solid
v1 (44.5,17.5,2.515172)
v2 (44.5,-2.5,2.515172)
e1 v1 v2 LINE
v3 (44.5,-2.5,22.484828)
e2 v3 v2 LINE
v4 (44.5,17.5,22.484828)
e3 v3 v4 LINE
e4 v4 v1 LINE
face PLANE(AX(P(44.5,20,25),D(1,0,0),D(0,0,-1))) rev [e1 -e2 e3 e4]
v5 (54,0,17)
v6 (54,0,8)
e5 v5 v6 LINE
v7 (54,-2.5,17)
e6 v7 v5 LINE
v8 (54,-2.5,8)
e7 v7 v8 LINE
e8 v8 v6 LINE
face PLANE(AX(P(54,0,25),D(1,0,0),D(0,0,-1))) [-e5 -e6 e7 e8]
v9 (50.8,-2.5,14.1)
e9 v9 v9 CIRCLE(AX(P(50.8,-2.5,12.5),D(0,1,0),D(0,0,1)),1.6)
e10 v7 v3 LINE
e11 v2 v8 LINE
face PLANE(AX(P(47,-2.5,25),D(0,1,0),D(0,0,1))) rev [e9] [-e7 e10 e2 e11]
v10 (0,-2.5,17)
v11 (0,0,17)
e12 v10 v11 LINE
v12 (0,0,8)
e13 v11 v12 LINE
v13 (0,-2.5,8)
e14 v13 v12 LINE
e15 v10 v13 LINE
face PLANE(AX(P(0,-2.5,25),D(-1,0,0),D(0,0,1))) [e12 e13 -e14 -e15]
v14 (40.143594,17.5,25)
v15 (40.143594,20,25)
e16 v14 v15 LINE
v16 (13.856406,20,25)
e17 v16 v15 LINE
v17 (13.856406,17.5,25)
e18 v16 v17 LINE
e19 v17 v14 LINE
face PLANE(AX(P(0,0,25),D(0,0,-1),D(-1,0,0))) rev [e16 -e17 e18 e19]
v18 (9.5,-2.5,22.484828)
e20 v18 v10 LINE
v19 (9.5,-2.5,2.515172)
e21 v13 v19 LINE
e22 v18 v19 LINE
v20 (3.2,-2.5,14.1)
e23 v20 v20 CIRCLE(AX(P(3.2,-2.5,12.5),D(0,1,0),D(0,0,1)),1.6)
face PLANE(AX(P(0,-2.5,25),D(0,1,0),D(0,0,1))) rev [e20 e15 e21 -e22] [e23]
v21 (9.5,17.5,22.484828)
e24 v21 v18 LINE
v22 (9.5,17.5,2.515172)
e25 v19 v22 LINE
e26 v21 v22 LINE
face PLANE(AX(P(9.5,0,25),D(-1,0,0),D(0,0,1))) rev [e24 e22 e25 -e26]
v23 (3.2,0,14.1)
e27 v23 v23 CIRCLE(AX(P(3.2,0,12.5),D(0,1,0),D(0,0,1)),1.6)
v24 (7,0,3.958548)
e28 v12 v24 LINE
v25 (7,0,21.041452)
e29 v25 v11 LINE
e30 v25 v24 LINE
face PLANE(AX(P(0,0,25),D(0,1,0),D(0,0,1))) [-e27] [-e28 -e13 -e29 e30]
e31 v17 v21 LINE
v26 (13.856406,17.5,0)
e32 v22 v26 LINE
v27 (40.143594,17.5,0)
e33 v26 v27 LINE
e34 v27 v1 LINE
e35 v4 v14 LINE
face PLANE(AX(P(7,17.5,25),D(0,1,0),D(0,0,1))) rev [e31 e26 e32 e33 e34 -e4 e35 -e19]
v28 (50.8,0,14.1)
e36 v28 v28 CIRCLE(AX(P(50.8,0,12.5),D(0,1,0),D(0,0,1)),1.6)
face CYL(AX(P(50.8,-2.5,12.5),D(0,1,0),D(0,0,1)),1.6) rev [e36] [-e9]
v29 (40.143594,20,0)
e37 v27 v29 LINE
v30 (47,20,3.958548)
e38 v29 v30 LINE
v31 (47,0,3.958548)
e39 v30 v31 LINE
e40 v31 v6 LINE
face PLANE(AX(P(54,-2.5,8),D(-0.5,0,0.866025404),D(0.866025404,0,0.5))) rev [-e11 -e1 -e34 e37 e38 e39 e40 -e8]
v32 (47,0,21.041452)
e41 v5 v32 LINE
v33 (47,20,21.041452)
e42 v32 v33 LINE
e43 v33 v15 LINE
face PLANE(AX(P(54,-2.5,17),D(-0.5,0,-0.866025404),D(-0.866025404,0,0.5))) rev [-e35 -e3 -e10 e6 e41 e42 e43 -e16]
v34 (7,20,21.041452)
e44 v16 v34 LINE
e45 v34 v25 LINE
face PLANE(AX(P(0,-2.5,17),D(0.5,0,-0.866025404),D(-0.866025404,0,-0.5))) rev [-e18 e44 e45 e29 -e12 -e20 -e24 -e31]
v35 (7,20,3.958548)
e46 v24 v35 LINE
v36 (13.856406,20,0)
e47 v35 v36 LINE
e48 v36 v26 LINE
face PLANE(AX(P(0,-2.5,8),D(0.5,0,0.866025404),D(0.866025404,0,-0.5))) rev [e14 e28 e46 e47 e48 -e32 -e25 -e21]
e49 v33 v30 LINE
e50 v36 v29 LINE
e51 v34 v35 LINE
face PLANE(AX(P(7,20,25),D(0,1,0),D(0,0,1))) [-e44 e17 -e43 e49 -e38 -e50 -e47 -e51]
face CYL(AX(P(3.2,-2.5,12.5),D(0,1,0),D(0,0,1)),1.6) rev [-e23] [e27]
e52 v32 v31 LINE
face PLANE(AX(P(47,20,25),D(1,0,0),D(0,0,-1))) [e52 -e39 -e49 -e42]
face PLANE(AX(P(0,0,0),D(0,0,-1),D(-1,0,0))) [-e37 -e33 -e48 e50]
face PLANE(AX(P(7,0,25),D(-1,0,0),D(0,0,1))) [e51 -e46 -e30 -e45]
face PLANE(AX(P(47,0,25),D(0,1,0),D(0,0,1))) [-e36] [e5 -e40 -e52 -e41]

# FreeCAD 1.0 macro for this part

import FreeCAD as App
import Part
import Sketcher

V = App.Vector
Q = App.Units.Quantity

doc = App.newDocument("Part")
params = doc.addObject("Spreadsheet::Sheet", "Params")
for row, (alias, value) in enumerate([
    ("sketch1_width", "7 mm"),
    ("sketch1_width2", "35 mm"),
    ("sketch1_width3", "40 mm"),
    ("sketch1_height", "20 mm"),
    ("sketch1_height2", "2.5 mm"),
    ("pad1_length", "25 mm"),
    ("sketch2_height", "8 mm"),
    ("sketch3_diameter", "3.2 mm"),
], start=1):
    params.set(f"A{row}", alias)
    params.set(f"B{row}", "=" + value)
    params.setAlias(f"B{row}", alias)

body = doc.addObject("PartDesign::Body", "Body")

# Sketch on XY plane
sketch1 = doc.addObject("Sketcher::SketchObject", "Sketch")
body.addObject(sketch1)
sketch1.AttachmentSupport = (doc.XY_Plane, [""])
sketch1.MapMode = "FlatFace"
sketch1.addGeometry([
    Part.LineSegment(V(7, 0, 0), V(0, 0, 0)),  # 0
    Part.LineSegment(V(0, 0, 0), V(0, -2.5, 0)),  # 1
    Part.LineSegment(V(0, -2.5, 0), V(9.5, -2.5, 0)),  # 2
    Part.LineSegment(V(9.5, -2.5, 0), V(9.5, 17.5, 0)),  # 3
    Part.LineSegment(V(9.5, 17.5, 0), V(44.5, 17.5, 0)),  # 4
    Part.LineSegment(V(44.5, 17.5, 0), V(44.5, -2.5, 0)),  # 5
    Part.LineSegment(V(44.5, -2.5, 0), V(54, -2.5, 0)),  # 6
    Part.LineSegment(V(54, -2.5, 0), V(54, 0, 0)),  # 7
    Part.LineSegment(V(54, 0, 0), V(47, 0, 0)),  # 8
    Part.LineSegment(V(47, 0, 0), V(47, 20, 0)),  # 9
    Part.LineSegment(V(47, 20, 0), V(7, 20, 0)),  # 10
    Part.LineSegment(V(7, 20, 0), V(7, 0, 0)),  # 11
], False)
sketch1.addConstraint([
    Sketcher.Constraint("Coincident", 0, 2, 1, 1),
    Sketcher.Constraint("Coincident", 1, 2, 2, 1),
    Sketcher.Constraint("Coincident", 2, 2, 3, 1),
    Sketcher.Constraint("Coincident", 3, 2, 4, 1),
    Sketcher.Constraint("Coincident", 4, 2, 5, 1),
    Sketcher.Constraint("Coincident", 5, 2, 6, 1),
    Sketcher.Constraint("Coincident", 6, 2, 7, 1),
    Sketcher.Constraint("Coincident", 7, 2, 8, 1),
    Sketcher.Constraint("Coincident", 8, 2, 9, 1),
    Sketcher.Constraint("Coincident", 9, 2, 10, 1),
    Sketcher.Constraint("Coincident", 10, 2, 11, 1),
    Sketcher.Constraint("Coincident", 11, 2, 0, 1),
    Sketcher.Constraint("Horizontal", 0),
    Sketcher.Constraint("Vertical", 1),
    Sketcher.Constraint("Horizontal", 2),
    Sketcher.Constraint("Vertical", 3),
    Sketcher.Constraint("Horizontal", 4),
    Sketcher.Constraint("Vertical", 5),
    Sketcher.Constraint("Horizontal", 6),
    Sketcher.Constraint("Vertical", 7),
    Sketcher.Constraint("Horizontal", 8),
    Sketcher.Constraint("Vertical", 9),
    Sketcher.Constraint("Horizontal", 10),
    Sketcher.Constraint("Vertical", 11),
    Sketcher.Constraint("Coincident", 0, 2, -1, 1),
    Sketcher.Constraint("PointOnObject", 7, 2, -1),
    Sketcher.Constraint("Horizontal", 2, 2, 5, 2),
    Sketcher.Constraint("Equal", 2, 6),
    Sketcher.Constraint("Equal", 0, 8),
    Sketcher.Constraint("Equal", 5, 9),
    Sketcher.Constraint("DistanceX", 0, 2, 0, 1, Q("7 mm")),
    Sketcher.Constraint("DistanceX", 4, 1, 4, 2, Q("35 mm")),
    Sketcher.Constraint("DistanceX", 10, 2, 10, 1, Q("40 mm")),
    Sketcher.Constraint("DistanceY", 3, 1, 3, 2, Q("20 mm")),
    Sketcher.Constraint("DistanceY", 1, 2, 1, 1, Q("2.5 mm")),
])
sketch1.setExpression("Constraints[30]", "Params.sketch1_width")
sketch1.setExpression("Constraints[31]", "Params.sketch1_width2")
sketch1.setExpression("Constraints[32]", "Params.sketch1_width3")
sketch1.setExpression("Constraints[33]", "Params.sketch1_height")
sketch1.setExpression("Constraints[34]", "Params.sketch1_height2")
pad1 = doc.addObject("PartDesign::Pad", "Pad")
body.addObject(pad1)
pad1.Profile = sketch1
pad1.setExpression("Length", "Params.pad1_length")

# Sketch on XZ plane
sketch2 = doc.addObject("Sketcher::SketchObject", "Sketch001")
body.addObject(sketch2)
sketch2.AttachmentSupport = (doc.XZ_Plane, [""])
sketch2.MapMode = "FlatFace"
sketch2.AttachmentOffset = App.Placement(V(0, 0, -20), App.Rotation())
sketch2.addGeometry([
    Part.LineSegment(V(0, 8, 0), V(13.856406, 0, 0)),  # 0
    Part.LineSegment(V(13.856406, 0, 0), V(0, 0, 0)),  # 1
    Part.LineSegment(V(0, 0, 0), V(0, 8, 0)),  # 2
    Part.LineSegment(V(13.856406, 25, 0), V(0, 17, 0)),  # 3
    Part.LineSegment(V(0, 17, 0), V(0, 25, 0)),  # 4
    Part.LineSegment(V(0, 25, 0), V(13.856406, 25, 0)),  # 5
    Part.LineSegment(V(54, 17, 0), V(40.143594, 25, 0)),  # 6
    Part.LineSegment(V(40.143594, 25, 0), V(54, 25, 0)),  # 7
    Part.LineSegment(V(54, 25, 0), V(54, 17, 0)),  # 8
    Part.LineSegment(V(40.143594, 0, 0), V(54, 8, 0)),  # 9
    Part.LineSegment(V(54, 8, 0), V(54, 0, 0)),  # 10
    Part.LineSegment(V(54, 0, 0), V(40.143594, 0, 0)),  # 11
], False)
sketch2.addConstraint([
    Sketcher.Constraint("Coincident", 0, 2, 1, 1),
    Sketcher.Constraint("Coincident", 1, 2, 2, 1),
    Sketcher.Constraint("Coincident", 2, 2, 0, 1),
    Sketcher.Constraint("Coincident", 3, 2, 4, 1),
    Sketcher.Constraint("Coincident", 4, 2, 5, 1),
    Sketcher.Constraint("Coincident", 5, 2, 3, 1),
    Sketcher.Constraint("Coincident", 6, 2, 7, 1),
    Sketcher.Constraint("Coincident", 7, 2, 8, 1),
    Sketcher.Constraint("Coincident", 8, 2, 6, 1),
    Sketcher.Constraint("Coincident", 9, 2, 10, 1),
    Sketcher.Constraint("Coincident", 10, 2, 11, 1),
    Sketcher.Constraint("Coincident", 11, 2, 9, 1),
    Sketcher.Constraint("Horizontal", 1),
    Sketcher.Constraint("Vertical", 2),
    Sketcher.Constraint("Vertical", 4),
    Sketcher.Constraint("Horizontal", 5),
    Sketcher.Constraint("Horizontal", 7),
    Sketcher.Constraint("Vertical", 8),
    Sketcher.Constraint("Vertical", 10),
    Sketcher.Constraint("Horizontal", 11),
    Sketcher.Constraint("Coincident", 1, 2, -1, 1),
    Sketcher.Constraint("PointOnObject", 3, 2, -2),
    Sketcher.Constraint("PointOnObject", 10, 2, -1),
    Sketcher.Constraint("Parallel", 0, 6),
    Sketcher.Constraint("Parallel", 3, 9),
    Sketcher.Constraint("Horizontal", 5, 2, 6, 2),
    Sketcher.Constraint("Horizontal", 3, 2, 8, 2),
    Sketcher.Constraint("Horizontal", 2, 2, 9, 2),
    Sketcher.Constraint("Vertical", 0, 2, 5, 2),
    Sketcher.Constraint("Vertical", 8, 2, 9, 2),
    Sketcher.Constraint("Vertical", 6, 2, 11, 2),
    Sketcher.Constraint("DistanceY", 2, 1, 2, 2, Q("8 mm")),
    Sketcher.Constraint("Angle", 0, Q("-30 deg")),
    Sketcher.Constraint("DistanceY", -1, 1, 3, 2, Q("17 mm")),
    Sketcher.Constraint("DistanceX", -1, 1, 7, 2, Q("54 mm")),
])
sketch2.setExpression("Constraints[31]", "Params.sketch2_height")
pocket1 = doc.addObject("PartDesign::Pocket", "Pocket")
body.addObject(pocket1)
pocket1.Profile = sketch2
pocket1.Type = "ThroughAll"
pocket1.Reversed = True

# Sketch on XZ plane
sketch3 = doc.addObject("Sketcher::SketchObject", "Sketch002")
body.addObject(sketch3)
sketch3.AttachmentSupport = (doc.XZ_Plane, [""])
sketch3.MapMode = "FlatFace"
sketch3.addGeometry([
    Part.Circle(V(50.8, 12.5, 0), V(0, 0, 1), 1.6),
    Part.Circle(V(3.2, 12.5, 0), V(0, 0, 1), 1.6),
], False)
sketch3.addConstraint([
    Sketcher.Constraint("Equal", 0, 1),
    Sketcher.Constraint("Horizontal", 0, 3, 1, 3),
    Sketcher.Constraint("Diameter", 0, Q("3.2 mm")),
    Sketcher.Constraint("DistanceX", -1, 1, 0, 3, Q("50.8 mm")),
    Sketcher.Constraint("DistanceY", -1, 1, 0, 3, Q("12.5 mm")),
    Sketcher.Constraint("DistanceX", -1, 1, 1, 3, Q("3.2 mm")),
])
sketch3.setExpression("Constraints[2]", "Params.sketch3_diameter")
pocket2 = doc.addObject("PartDesign::Pocket", "Pocket001")
body.addObject(pocket2)
pocket2.Profile = sketch3
pocket2.Type = "ThroughAll"
pocket2.Reversed = True

doc.recompute()
